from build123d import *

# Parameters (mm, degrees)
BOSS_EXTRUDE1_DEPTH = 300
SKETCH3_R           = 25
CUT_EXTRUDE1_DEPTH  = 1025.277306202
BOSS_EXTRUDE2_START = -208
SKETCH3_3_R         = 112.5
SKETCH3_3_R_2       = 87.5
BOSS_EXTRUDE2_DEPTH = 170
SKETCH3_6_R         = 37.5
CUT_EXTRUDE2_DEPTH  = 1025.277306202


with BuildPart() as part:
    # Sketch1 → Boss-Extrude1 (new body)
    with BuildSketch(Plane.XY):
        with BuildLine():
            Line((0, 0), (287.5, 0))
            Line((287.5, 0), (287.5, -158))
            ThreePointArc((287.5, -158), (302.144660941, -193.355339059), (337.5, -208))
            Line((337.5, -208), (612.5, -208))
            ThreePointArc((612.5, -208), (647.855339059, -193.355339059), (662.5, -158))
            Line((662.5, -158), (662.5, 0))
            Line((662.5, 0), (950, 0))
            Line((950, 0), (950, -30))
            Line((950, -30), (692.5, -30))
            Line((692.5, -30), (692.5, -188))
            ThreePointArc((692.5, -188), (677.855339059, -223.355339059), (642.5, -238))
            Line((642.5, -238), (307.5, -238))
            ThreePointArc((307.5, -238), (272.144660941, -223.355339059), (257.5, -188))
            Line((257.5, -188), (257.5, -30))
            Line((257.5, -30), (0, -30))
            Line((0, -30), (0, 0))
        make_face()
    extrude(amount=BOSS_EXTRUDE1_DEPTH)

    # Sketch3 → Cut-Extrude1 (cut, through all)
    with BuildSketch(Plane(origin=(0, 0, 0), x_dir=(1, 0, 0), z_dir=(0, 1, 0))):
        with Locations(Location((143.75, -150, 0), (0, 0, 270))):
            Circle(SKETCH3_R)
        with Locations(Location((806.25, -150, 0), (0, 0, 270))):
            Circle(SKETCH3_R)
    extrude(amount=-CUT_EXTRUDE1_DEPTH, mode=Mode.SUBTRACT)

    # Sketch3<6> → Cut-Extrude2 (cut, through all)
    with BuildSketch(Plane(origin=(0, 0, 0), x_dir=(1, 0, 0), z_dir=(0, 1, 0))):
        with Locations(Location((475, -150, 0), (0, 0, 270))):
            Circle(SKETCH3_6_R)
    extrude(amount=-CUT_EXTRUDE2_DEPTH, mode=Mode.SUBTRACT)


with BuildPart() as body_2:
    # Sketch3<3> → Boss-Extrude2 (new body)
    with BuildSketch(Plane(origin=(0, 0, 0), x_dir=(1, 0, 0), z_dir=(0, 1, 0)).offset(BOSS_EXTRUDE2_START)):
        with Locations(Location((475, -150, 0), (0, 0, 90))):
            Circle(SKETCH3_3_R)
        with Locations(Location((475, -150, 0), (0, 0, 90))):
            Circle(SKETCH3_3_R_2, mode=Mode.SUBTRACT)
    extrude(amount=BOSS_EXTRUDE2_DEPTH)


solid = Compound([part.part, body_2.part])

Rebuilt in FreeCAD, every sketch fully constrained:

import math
import FreeCAD as App
import Part
import Sketcher
from FreeCAD import Vector

doc = App.newDocument("Part")
body = doc.addObject("PartDesign::Body", "Body")

# Sketch on XY plane
sketch1 = body.newObject("Sketcher::SketchObject", "Sketch")
sketch1.AttachmentSupport = (doc.getObject("XY_Plane"), [""])
sketch1.MapMode = "FlatFace"
sketch1.addGeometry([
    Part.LineSegment(Vector(288, 0, 0), Vector(0, 0, 0)),  # 0
    Part.LineSegment(Vector(0, 0, 0), Vector(0, -30, 0)),  # 1
    Part.LineSegment(Vector(0, -30, 0), Vector(258, -30, 0)),  # 2
    Part.LineSegment(Vector(258, -30, 0), Vector(258, -188, 0)),  # 3
    Part.ArcOfCircle(Part.Circle(Vector(308, -188, 0), Vector(0, 0, 1), 50), math.radians(-180), math.radians(-90)),  # 4
    Part.LineSegment(Vector(308, -238, 0), Vector(642, -238, 0)),  # 5
    Part.ArcOfCircle(Part.Circle(Vector(642, -188, 0), Vector(0, 0, 1), 50), math.radians(-90), math.radians(0)),  # 6
    Part.LineSegment(Vector(692, -188, 0), Vector(692, -30, 0)),  # 7
    Part.LineSegment(Vector(692, -30, 0), Vector(950, -30, 0)),  # 8
    Part.LineSegment(Vector(950, -30, 0), Vector(950, 0, 0)),  # 9
    Part.LineSegment(Vector(950, 0, 0), Vector(662, 0, 0)),  # 10
    Part.LineSegment(Vector(662, 0, 0), Vector(662, -158, 0)),  # 11
    Part.ArcOfCircle(Part.Circle(Vector(612, -158, 0), Vector(0, 0, 1), 50), math.radians(-90), math.radians(0)),  # 12
    Part.LineSegment(Vector(612, -208, 0), Vector(338, -208, 0)),  # 13
    Part.ArcOfCircle(Part.Circle(Vector(338, -158, 0), Vector(0, 0, 1), 50), math.radians(-180), math.radians(-90)),  # 14
    Part.LineSegment(Vector(288, -158, 0), Vector(288, 0, 0)),  # 15
], False)
sketch1.addConstraint([
    Sketcher.Constraint("Coincident", 0, 2, 1, 1),
    Sketcher.Constraint("Coincident", 1, 2, 2, 1),
    Sketcher.Constraint("Coincident", 2, 2, 3, 1),
    Sketcher.Constraint("Tangent", 3, 2, 4, 1),
    Sketcher.Constraint("Tangent", 4, 2, 5, 1),
    Sketcher.Constraint("Tangent", 5, 2, 6, 1),
    Sketcher.Constraint("Tangent", 6, 2, 7, 1),
    Sketcher.Constraint("Coincident", 7, 2, 8, 1),
    Sketcher.Constraint("Coincident", 8, 2, 9, 1),
    Sketcher.Constraint("Coincident", 9, 2, 10, 1),
    Sketcher.Constraint("Coincident", 10, 2, 11, 1),
    Sketcher.Constraint("Tangent", 11, 2, 12, 2),
    Sketcher.Constraint("Tangent", 12, 1, 13, 1),
    Sketcher.Constraint("Tangent", 13, 2, 14, 2),
    Sketcher.Constraint("Tangent", 14, 1, 15, 1),
    Sketcher.Constraint("Coincident", 15, 2, 0, 1),
    Sketcher.Constraint("Horizontal", 0),
    Sketcher.Constraint("Vertical", 1),
    Sketcher.Constraint("Horizontal", 2),
    Sketcher.Constraint("Vertical", 3),
    Sketcher.Constraint("Horizontal", 5),
    Sketcher.Constraint("Vertical", 7),
    Sketcher.Constraint("Horizontal", 8),
    Sketcher.Constraint("Vertical", 9),
    Sketcher.Constraint("Horizontal", 10),
    Sketcher.Constraint("Vertical", 11),
    Sketcher.Constraint("Horizontal", 13),
    Sketcher.Constraint("Vertical", 15),
    Sketcher.Constraint("Coincident", 0, 2, -1, 1),
    Sketcher.Constraint("Equal", 4, 6),
    Sketcher.Constraint("Equal", 6, 12),
    Sketcher.Constraint("Equal", 12, 14),
    Sketcher.Constraint("PointOnObject", 9, 2, -1),
    Sketcher.Constraint("Horizontal", 2, 2, 7, 2),
    Sketcher.Constraint("Equal", 2, 8),
    Sketcher.Constraint("Equal", 0, 10),
    Sketcher.Constraint("Equal", 7, 11),
    Sketcher.Constraint("Radius", 4, 50.0),
    Sketcher.Constraint("DistanceX", 5, 1, 5, 2, 335.0),
    Sketcher.Constraint("DistanceX", 13, 2, 13, 1, 275.0),
    Sketcher.Constraint("DistanceY", 1, 2, 1, 1, 30.0),
    Sketcher.Constraint("DistanceY", 3, 2, 3, 1, 158.0),
    Sketcher.Constraint("DistanceX", 0, 2, 0, 1, 287.5),
])
pad1 = body.newObject("PartDesign::Pad", "Pad")
pad1.Profile = sketch1
pad1.Length = 300

# Sketch on XZ plane
sketch2 = body.newObject("Sketcher::SketchObject", "Sketch001")
sketch2.AttachmentSupport = (doc.getObject("XZ_Plane"), [""])
sketch2.MapMode = "FlatFace"
sketch2.addGeometry([
    Part.Circle(Vector(144, 150, 0), Vector(0, 0, 1), 25),
    Part.Circle(Vector(806, 150, 0), Vector(0, 0, 1), 25),
], False)
sketch2.addConstraint([
    Sketcher.Constraint("Equal", 0, 1),
    Sketcher.Constraint("Horizontal", 0, 3, 1, 3),
    Sketcher.Constraint("Diameter", 0, 50.0),
    Sketcher.Constraint("DistanceY", -1, 1, 0, 3, 150.0),
    Sketcher.Constraint("DistanceX", 0, 3, 1, 3, 662.5),
    Sketcher.Constraint("DistanceX", -1, 1, 0, 3, 143.75),
])
pocket1 = body.newObject("PartDesign::Pocket", "Pocket")
pocket1.Profile = sketch2
pocket1.Type = "ThroughAll"
pocket1.Reversed = True

# Sketch on XZ plane
sketch3 = body.newObject("Sketcher::SketchObject", "Sketch002")
sketch3.AttachmentSupport = (doc.getObject("XZ_Plane"), [""])
sketch3.MapMode = "FlatFace"
sketch3.addGeometry(Part.Circle(Vector(475, 150, 0), Vector(0, 0, 1), 38), False)
sketch3.addConstraint([
    Sketcher.Constraint("Diameter", 0, 75.0),
    Sketcher.Constraint("DistanceX", -1, 1, 0, 3, 475.0),
    Sketcher.Constraint("DistanceY", -1, 1, 0, 3, 150.0),
])
pocket2 = body.newObject("PartDesign::Pocket", "Pocket001")
pocket2.Profile = sketch3
pocket2.Type = "ThroughAll"
pocket2.Reversed = True
body2 = doc.addObject("PartDesign::Body", "Body001")

# Sketch on XZ plane
sketch4 = body2.newObject("Sketcher::SketchObject", "Sketch003")
sketch4.AttachmentSupport = (doc.getObject("XZ_Plane001"), [""])
sketch4.MapMode = "FlatFace"
sketch4.AttachmentOffset = App.Placement(Vector(0, 0, 208), App.Rotation())
sketch4.addGeometry([
    Part.Circle(Vector(475, 150, 0), Vector(0, 0, 1), 112),
    Part.Circle(Vector(475, 150, 0), Vector(0, 0, 1), 88),
], False)
sketch4.addConstraint([
    Sketcher.Constraint("Coincident", 1, 3, 0, 3),
    Sketcher.Constraint("Diameter", 0, 225.0),
    Sketcher.Constraint("Diameter", 1, 175.0),
    Sketcher.Constraint("DistanceX", -1, 1, 0, 3, 475.0),
    Sketcher.Constraint("DistanceY", -1, 1, 0, 3, 150.0),
])
pad2 = body2.newObject("PartDesign::Pad", "Pad001")
pad2.Profile = sketch4
pad2.Length = 170
pad2.Reversed = True

doc.recompute()
